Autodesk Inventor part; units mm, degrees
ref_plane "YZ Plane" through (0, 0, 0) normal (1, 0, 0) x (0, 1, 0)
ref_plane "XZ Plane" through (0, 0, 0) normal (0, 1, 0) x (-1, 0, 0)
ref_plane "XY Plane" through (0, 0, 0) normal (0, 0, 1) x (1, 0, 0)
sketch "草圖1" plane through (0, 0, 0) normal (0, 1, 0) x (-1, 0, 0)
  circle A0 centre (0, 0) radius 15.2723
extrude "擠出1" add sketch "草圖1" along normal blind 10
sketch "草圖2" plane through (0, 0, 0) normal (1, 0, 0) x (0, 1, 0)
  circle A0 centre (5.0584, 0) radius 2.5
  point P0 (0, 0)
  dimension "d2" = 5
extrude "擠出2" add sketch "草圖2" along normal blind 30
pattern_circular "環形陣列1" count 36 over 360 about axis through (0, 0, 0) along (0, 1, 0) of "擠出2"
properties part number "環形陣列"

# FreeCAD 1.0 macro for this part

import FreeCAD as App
import Part
import Sketcher

V = App.Vector
Q = App.Units.Quantity

doc = App.newDocument("Part")
body = doc.addObject("PartDesign::Body", "Body")

# Sketch on XZ plane
sketch1 = doc.addObject("Sketcher::SketchObject", "Sketch")
body.addObject(sketch1)
sketch1.AttachmentSupport = (doc.XZ_Plane, [""])
sketch1.MapMode = "FlatFace"
sketch1.addGeometry(Part.Circle(V(0, 0, 0), V(0, 0, 1), 15), False)
sketch1.addConstraint(Sketcher.Constraint("Coincident", 0, 3, -1, 1))
sketch1.addConstraint(Sketcher.Constraint("Diameter", 0, Q("30.5446 mm")))
pad1 = doc.addObject("PartDesign::Pad", "Pad")
body.addObject(pad1)
pad1.Profile = sketch1
pad1.Length = 10
pad1.Reversed = True

# Sketch on YZ plane
sketch2 = doc.addObject("Sketcher::SketchObject", "Sketch001")
body.addObject(sketch2)
sketch2.AttachmentSupport = (doc.YZ_Plane, [""])
sketch2.MapMode = "FlatFace"
sketch2.addGeometry(Part.Circle(V(5.1, 0, 0), V(0, 0, 1), 2.5), False)
sketch2.addConstraint(Sketcher.Constraint("PointOnObject", 0, 3, -1))
sketch2.addConstraint(Sketcher.Constraint("Diameter", 0, Q("5 mm")))
sketch2.addConstraint(Sketcher.Constraint("DistanceX", -1, 1, 0, 3, Q("5.0584 mm")))
pad2 = doc.addObject("PartDesign::Pad", "Pad001")
body.addObject(pad2)
pad2.Profile = sketch2
pad2.Length = 30
doc.recompute()

polarpattern = doc.addObject("PartDesign::PolarPattern", "PolarPattern")
body.addObject(polarpattern)
polarpattern.Originals = [pad2]
polarpattern.Axis = (doc.Y_Axis, [""])
polarpattern.Angle = 360
polarpattern.Occurrences = 36
body.Tip = polarpattern

doc.recompute()
